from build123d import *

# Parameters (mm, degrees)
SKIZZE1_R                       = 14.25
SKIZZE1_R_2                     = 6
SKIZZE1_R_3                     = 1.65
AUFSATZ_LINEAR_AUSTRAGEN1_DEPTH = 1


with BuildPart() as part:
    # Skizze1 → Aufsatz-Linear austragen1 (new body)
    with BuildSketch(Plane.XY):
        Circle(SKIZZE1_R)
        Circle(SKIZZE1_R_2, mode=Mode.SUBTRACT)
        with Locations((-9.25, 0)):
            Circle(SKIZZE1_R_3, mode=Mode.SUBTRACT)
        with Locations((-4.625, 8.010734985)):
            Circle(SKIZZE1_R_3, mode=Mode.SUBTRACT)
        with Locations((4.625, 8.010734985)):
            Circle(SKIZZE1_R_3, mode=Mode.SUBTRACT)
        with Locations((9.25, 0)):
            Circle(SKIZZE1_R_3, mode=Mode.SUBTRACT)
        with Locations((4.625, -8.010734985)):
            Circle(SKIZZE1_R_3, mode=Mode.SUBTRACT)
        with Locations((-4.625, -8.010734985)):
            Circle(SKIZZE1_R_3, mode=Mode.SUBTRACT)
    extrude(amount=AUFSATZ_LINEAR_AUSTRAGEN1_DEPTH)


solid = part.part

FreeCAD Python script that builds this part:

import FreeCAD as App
import Part
import Sketcher

V = App.Vector
Q = App.Units.Quantity

doc = App.newDocument("Part")
params = doc.addObject("Spreadsheet::Sheet", "Params")
for row, (alias, value) in enumerate([
    ("sketch1_diameter", "12 mm"),
    ("sketch1_diameter2", "28.5 mm"),
    ("sketch1_diameter3", "3.3 mm"),
    ("pad1_length", "1 mm"),
], start=1):
    params.set(f"A{row}", alias)
    params.set(f"B{row}", "=" + value)
    params.setAlias(f"B{row}", alias)

body = doc.addObject("PartDesign::Body", "Body")

# Sketch on XY plane
sketch1 = body.newObject("Sketcher::SketchObject", "Sketch")
sketch1.AttachmentSupport = (doc.getObject("XY_Plane"), [""])
sketch1.MapMode = "FlatFace"
sketch1.addGeometry(Part.Circle(V(0, 0, 0), V(0, 0, 1), 14.2), False)
sketch1.addGeometry(Part.Circle(V(-4.6, -8, 0), V(0, 0, 1), 1.6), False)
sketch1.addGeometry(Part.Circle(V(4.6, -8, 0), V(0, 0, 1), 1.6), False)
sketch1.addGeometry(Part.Circle(V(-9.2, 0, 0), V(0, 0, 1), 1.6), False)
sketch1.addGeometry(Part.Circle(V(0, 0, 0), V(0, 0, 1), 6), False)
sketch1.addGeometry(Part.Circle(V(-4.6, 8, 0), V(0, 0, 1), 1.6), False)
sketch1.addGeometry(Part.Circle(V(9.2, 0, 0), V(0, 0, 1), 1.6), False)
sketch1.addGeometry(Part.Circle(V(4.6, 8, 0), V(0, 0, 1), 1.6), False)
sketch1.addConstraint(Sketcher.Constraint("Coincident", 0, 3, -1, 1))
sketch1.addConstraint(Sketcher.Constraint("Coincident", 4, 3, -1, 1))
sketch1.addConstraint(Sketcher.Constraint("Equal", 1, 2))
sketch1.addConstraint(Sketcher.Constraint("Equal", 2, 3))
sketch1.addConstraint(Sketcher.Constraint("Equal", 3, 5))
sketch1.addConstraint(Sketcher.Constraint("Equal", 5, 6))
sketch1.addConstraint(Sketcher.Constraint("Equal", 6, 7))
sketch1.addConstraint(Sketcher.Constraint("Symmetric", 2, 3, 5, 3, -1, 1))
sketch1.addConstraint(Sketcher.Constraint("Symmetric", 3, 3, 6, 3, -1, 1))
sketch1.addConstraint(Sketcher.Constraint("Symmetric", 1, 3, 7, 3, -1, 1))
sketch1.addConstraint(Sketcher.Constraint("Symmetric", 1, 3, 2, 3, -2))
sketch1.addConstraint(Sketcher.Constraint("PointOnObject", 3, 3, -1))
sketch1.addConstraint(Sketcher.Constraint("Diameter", 4, Q("12 mm")))
sketch1.addConstraint(Sketcher.Constraint("Diameter", 0, Q("28.5 mm")))
sketch1.addConstraint(Sketcher.Constraint("Diameter", 1, Q("3.3 mm")))
sketch1.addConstraint(Sketcher.Constraint("DistanceX", 3, 3, -1, 1, Q("9.25 mm")))
sketch1.addConstraint(Sketcher.Constraint("DistanceX", 1, 3, 2, 3, Q("9.25 mm")))
sketch1.addConstraint(Sketcher.Constraint("DistanceY", 1, 3, 5, 3, Q("16.02147 mm")))
sketch1.setExpression("Constraints[12]", "Params.sketch1_diameter")
sketch1.setExpression("Constraints[13]", "Params.sketch1_diameter2")
sketch1.setExpression("Constraints[14]", "Params.sketch1_diameter3")
pad1 = body.newObject("PartDesign::Pad", "Pad")
pad1.Profile = sketch1
pad1.setExpression("Length", "Params.pad1_length")

doc.recompute()
